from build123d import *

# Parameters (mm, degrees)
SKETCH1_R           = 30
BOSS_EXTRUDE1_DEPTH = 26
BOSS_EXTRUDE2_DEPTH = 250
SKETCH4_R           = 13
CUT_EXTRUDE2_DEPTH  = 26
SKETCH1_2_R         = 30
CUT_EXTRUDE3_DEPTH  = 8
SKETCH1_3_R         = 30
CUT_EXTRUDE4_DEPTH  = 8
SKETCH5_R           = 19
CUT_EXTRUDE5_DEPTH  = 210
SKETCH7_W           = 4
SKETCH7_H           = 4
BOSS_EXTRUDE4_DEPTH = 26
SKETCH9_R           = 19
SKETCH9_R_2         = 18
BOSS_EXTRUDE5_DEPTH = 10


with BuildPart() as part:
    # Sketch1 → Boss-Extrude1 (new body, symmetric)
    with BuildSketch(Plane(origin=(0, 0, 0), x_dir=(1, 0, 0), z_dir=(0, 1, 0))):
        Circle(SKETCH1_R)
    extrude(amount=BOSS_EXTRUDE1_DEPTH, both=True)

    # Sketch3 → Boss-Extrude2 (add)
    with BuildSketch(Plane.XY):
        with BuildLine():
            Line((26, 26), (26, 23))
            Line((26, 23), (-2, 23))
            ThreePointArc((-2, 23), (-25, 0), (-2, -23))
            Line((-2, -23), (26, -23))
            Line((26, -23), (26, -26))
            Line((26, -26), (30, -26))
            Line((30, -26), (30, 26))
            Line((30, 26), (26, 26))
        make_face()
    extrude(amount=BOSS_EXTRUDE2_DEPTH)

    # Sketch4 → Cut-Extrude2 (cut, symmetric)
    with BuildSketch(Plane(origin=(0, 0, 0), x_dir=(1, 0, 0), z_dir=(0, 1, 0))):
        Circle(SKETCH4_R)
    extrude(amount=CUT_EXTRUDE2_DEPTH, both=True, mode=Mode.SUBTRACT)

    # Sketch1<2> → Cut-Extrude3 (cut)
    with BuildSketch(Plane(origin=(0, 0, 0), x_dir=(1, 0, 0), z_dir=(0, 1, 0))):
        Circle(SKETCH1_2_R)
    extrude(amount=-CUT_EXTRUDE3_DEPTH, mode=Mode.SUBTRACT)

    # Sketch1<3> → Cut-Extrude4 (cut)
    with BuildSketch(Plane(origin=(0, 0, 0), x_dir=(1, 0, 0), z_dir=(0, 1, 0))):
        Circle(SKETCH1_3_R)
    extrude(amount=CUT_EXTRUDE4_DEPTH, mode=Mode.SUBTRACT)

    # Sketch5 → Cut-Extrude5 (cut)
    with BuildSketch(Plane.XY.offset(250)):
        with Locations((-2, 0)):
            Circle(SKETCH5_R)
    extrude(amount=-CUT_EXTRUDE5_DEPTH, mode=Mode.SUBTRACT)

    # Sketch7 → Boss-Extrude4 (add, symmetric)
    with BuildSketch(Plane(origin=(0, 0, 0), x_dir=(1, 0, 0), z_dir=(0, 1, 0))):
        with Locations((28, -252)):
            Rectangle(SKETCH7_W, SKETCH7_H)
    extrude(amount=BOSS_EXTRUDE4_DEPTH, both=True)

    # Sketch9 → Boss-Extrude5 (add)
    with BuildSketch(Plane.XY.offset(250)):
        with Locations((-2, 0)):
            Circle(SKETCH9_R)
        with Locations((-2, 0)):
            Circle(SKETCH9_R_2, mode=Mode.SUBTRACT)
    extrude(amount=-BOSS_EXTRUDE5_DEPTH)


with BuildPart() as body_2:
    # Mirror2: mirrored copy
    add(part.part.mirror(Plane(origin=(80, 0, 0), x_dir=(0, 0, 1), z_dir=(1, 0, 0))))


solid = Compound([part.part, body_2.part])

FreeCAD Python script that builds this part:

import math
import FreeCAD as App
import Part
import Sketcher

V = App.Vector


def add_polygon(sketch, points):
    """Adds a closed chain of lines whose ends are joined by coincident constraints."""
    first, n = sketch.GeometryCount, len(points)
    for a, b in zip(points, points[1:] + points[:1]):
        sketch.addGeometry(Part.LineSegment(App.Vector(*a, 0), App.Vector(*b, 0)), False)
    for i in range(n):
        sketch.addConstraint(Sketcher.Constraint("Coincident", first + i, 2, first + (i + 1) % n, 1))

doc = App.newDocument("Part")
params = doc.addObject("Spreadsheet::Sheet", "Params")
for row, (alias, value) in enumerate([
    ("sketch1_diameter", "60 mm"),
    ("pad1_length", "52 mm"),
    ("sketch2_radius", "23 mm"),
    ("sketch2_width", "28 mm"),
    ("sketch2_width2", "4 mm"),
    ("sketch2_height", "3 mm"),
    ("pad2_length", "250 mm"),
    ("sketch3_diameter", "26 mm"),
    ("pocket1_length", "52 mm"),
    ("sketch4_diameter", "60 mm"),
    ("pocket2_length", "8 mm"),
    ("sketch5_diameter", "60 mm"),
    ("pocket3_length", "8 mm"),
    ("sketch6_diameter", "38 mm"),
    ("pocket4_length", "210 mm"),
    ("sketch7_width", "4 mm"),
    ("pad3_length", "52 mm"),
    ("sketch8_diameter", "38 mm"),
    ("sketch8_diameter2", "36 mm"),
    ("pad4_length", "10 mm"),
], start=1):
    params.set(f"A{row}", alias)
    params.set(f"B{row}", "=" + value)
    params.setAlias(f"B{row}", alias)

body = doc.addObject("PartDesign::Body", "Body")

# Sketch on XZ plane
sketch1 = doc.addObject("Sketcher::SketchObject", "Sketch")
body.addObject(sketch1)
sketch1.AttachmentSupport = (doc.XZ_Plane, [""])
sketch1.MapMode = "FlatFace"
sketch1.addGeometry(Part.Circle(V(0, 0, 0), V(0, 0, 1), 30), False)
sketch1.addConstraint([
    Sketcher.Constraint("Coincident", 0, 3, -1, 1),
    Sketcher.Constraint("Diameter", 0, 60.0),
])
sketch1.setExpression("Constraints[1]", "Params.sketch1_diameter")
pad1 = doc.addObject("PartDesign::Pad", "Pad")
body.addObject(pad1)
pad1.Profile = sketch1
pad1.setExpression("Length", "Params.pad1_length")
pad1.Midplane = True

# Sketch on XY plane
sketch2 = doc.addObject("Sketcher::SketchObject", "Sketch001")
body.addObject(sketch2)
sketch2.AttachmentSupport = (doc.XY_Plane, [""])
sketch2.MapMode = "FlatFace"
sketch2.addGeometry([
    Part.LineSegment(V(26, 26, 0), V(26, 23, 0)),  # 0
    Part.LineSegment(V(26, 23, 0), V(-2, 23, 0)),  # 1
    Part.ArcOfCircle(Part.Circle(V(-2, 0, 0), V(0, 0, 1), 23), math.radians(90), math.radians(270)),  # 2
    Part.LineSegment(V(-2, -23, 0), V(26, -23, 0)),  # 3
    Part.LineSegment(V(26, -23, 0), V(26, -26, 0)),  # 4
    Part.LineSegment(V(26, -26, 0), V(30, -26, 0)),  # 5
    Part.LineSegment(V(30, -26, 0), V(30, 26, 0)),  # 6
    Part.LineSegment(V(30, 26, 0), V(26, 26, 0)),  # 7
], False)
sketch2.addConstraint([
    Sketcher.Constraint("Coincident", 0, 2, 1, 1),
    Sketcher.Constraint("Tangent", 1, 2, 2, 1),
    Sketcher.Constraint("Tangent", 2, 2, 3, 1),
    Sketcher.Constraint("Coincident", 3, 2, 4, 1),
    Sketcher.Constraint("Coincident", 4, 2, 5, 1),
    Sketcher.Constraint("Coincident", 5, 2, 6, 1),
    Sketcher.Constraint("Coincident", 6, 2, 7, 1),
    Sketcher.Constraint("Coincident", 7, 2, 0, 1),
    Sketcher.Constraint("Vertical", 0),
    Sketcher.Constraint("Horizontal", 1),
    Sketcher.Constraint("Horizontal", 3),
    Sketcher.Constraint("Vertical", 4),
    Sketcher.Constraint("Horizontal", 5),
    Sketcher.Constraint("Vertical", 6),
    Sketcher.Constraint("Horizontal", 7),
    Sketcher.Constraint("Symmetric", 0, 2, 3, 2, -1),
    Sketcher.Constraint("Equal", 0, 4),
    Sketcher.Constraint("Radius", 2, 23.0),
    Sketcher.Constraint("DistanceX", 1, 2, 1, 1, 28.0),
    Sketcher.Constraint("DistanceX", 5, 1, 5, 2, 4.0),
    Sketcher.Constraint("DistanceY", 0, 2, 0, 1, 3.0),
    Sketcher.Constraint("DistanceX", 2, 3, -1, 1, 2.0),
])
sketch2.setExpression("Constraints[17]", "Params.sketch2_radius")
sketch2.setExpression("Constraints[18]", "Params.sketch2_width")
sketch2.setExpression("Constraints[19]", "Params.sketch2_width2")
sketch2.setExpression("Constraints[20]", "Params.sketch2_height")
pad2 = doc.addObject("PartDesign::Pad", "Pad001")
body.addObject(pad2)
pad2.Profile = sketch2
pad2.setExpression("Length", "Params.pad2_length")

# Sketch on XZ plane
sketch3 = doc.addObject("Sketcher::SketchObject", "Sketch002")
body.addObject(sketch3)
sketch3.AttachmentSupport = (doc.XZ_Plane, [""])
sketch3.MapMode = "FlatFace"
sketch3.addGeometry(Part.Circle(V(0, 0, 0), V(0, 0, 1), 13), False)
sketch3.addConstraint([
    Sketcher.Constraint("Coincident", 0, 3, -1, 1),
    Sketcher.Constraint("Diameter", 0, 26.0),
])
sketch3.setExpression("Constraints[1]", "Params.sketch3_diameter")
pocket1 = doc.addObject("PartDesign::Pocket", "Pocket")
body.addObject(pocket1)
pocket1.Profile = sketch3
pocket1.setExpression("Length", "Params.pocket1_length")
pocket1.Midplane = True

# Sketch on XZ plane
sketch4 = doc.addObject("Sketcher::SketchObject", "Sketch003")
body.addObject(sketch4)
sketch4.AttachmentSupport = (doc.XZ_Plane, [""])
sketch4.MapMode = "FlatFace"
sketch4.addGeometry(Part.Circle(V(0, 0, 0), V(0, 0, 1), 30), False)
sketch4.addConstraint([
    Sketcher.Constraint("Coincident", 0, 3, -1, 1),
    Sketcher.Constraint("Diameter", 0, 60.0),
])
sketch4.setExpression("Constraints[1]", "Params.sketch4_diameter")
pocket2 = doc.addObject("PartDesign::Pocket", "Pocket001")
body.addObject(pocket2)
pocket2.Profile = sketch4
pocket2.setExpression("Length", "Params.pocket2_length")
pocket2.Reversed = True

# Sketch on XZ plane
sketch5 = doc.addObject("Sketcher::SketchObject", "Sketch004")
body.addObject(sketch5)
sketch5.AttachmentSupport = (doc.XZ_Plane, [""])
sketch5.MapMode = "FlatFace"
sketch5.addGeometry(Part.Circle(V(0, 0, 0), V(0, 0, 1), 30), False)
sketch5.addConstraint([
    Sketcher.Constraint("Coincident", 0, 3, -1, 1),
    Sketcher.Constraint("Diameter", 0, 60.0),
])
sketch5.setExpression("Constraints[1]", "Params.sketch5_diameter")
pocket3 = doc.addObject("PartDesign::Pocket", "Pocket002")
body.addObject(pocket3)
pocket3.Profile = sketch5
pocket3.setExpression("Length", "Params.pocket3_length")

# Sketch on XY plane
sketch6 = doc.addObject("Sketcher::SketchObject", "Sketch005")
body.addObject(sketch6)
sketch6.AttachmentSupport = (doc.XY_Plane, [""])
sketch6.MapMode = "FlatFace"
sketch6.AttachmentOffset = App.Placement(V(0, 0, 250), App.Rotation())
sketch6.addGeometry(Part.Circle(V(-2, 0, 0), V(0, 0, 1), 19), False)
sketch6.addConstraint([
    Sketcher.Constraint("PointOnObject", 0, 3, -1),
    Sketcher.Constraint("Diameter", 0, 38.0),
    Sketcher.Constraint("DistanceX", 0, 3, -1, 1, 2.0),
])
sketch6.setExpression("Constraints[1]", "Params.sketch6_diameter")
pocket4 = doc.addObject("PartDesign::Pocket", "Pocket003")
body.addObject(pocket4)
pocket4.Profile = sketch6
pocket4.setExpression("Length", "Params.pocket4_length")

# Sketch on XZ plane
sketch7 = doc.addObject("Sketcher::SketchObject", "Sketch006")
body.addObject(sketch7)
sketch7.AttachmentSupport = (doc.XZ_Plane, [""])
sketch7.MapMode = "FlatFace"
add_polygon(sketch7, [(26, 250), (26, 254), (30, 254), (30, 250)])  # lines 0-3
sketch7.addConstraint([
    Sketcher.Constraint("Vertical", 0),
    Sketcher.Constraint("Horizontal", 1),
    Sketcher.Constraint("Vertical", 2),
    Sketcher.Constraint("Horizontal", 3),
    Sketcher.Constraint("Equal", 3, 0),
    Sketcher.Constraint("DistanceX", 1, 1, 1, 2, 4.0),
    Sketcher.Constraint("DistanceX", -1, 1, 0, 2, 26.0),
    Sketcher.Constraint("DistanceY", -1, 1, 0, 2, 254.0),
])
sketch7.setExpression("Constraints[9]", "Params.sketch7_width")
pad3 = doc.addObject("PartDesign::Pad", "Pad002")
body.addObject(pad3)
pad3.Profile = sketch7
pad3.setExpression("Length", "Params.pad3_length")
pad3.Midplane = True

# Sketch on XY plane
sketch8 = doc.addObject("Sketcher::SketchObject", "Sketch007")
body.addObject(sketch8)
sketch8.AttachmentSupport = (doc.XY_Plane, [""])
sketch8.MapMode = "FlatFace"
sketch8.AttachmentOffset = App.Placement(V(0, 0, 250), App.Rotation())
sketch8.addGeometry([
    Part.Circle(V(-2, 0, 0), V(0, 0, 1), 19),
    Part.Circle(V(-2, 0, 0), V(0, 0, 1), 18),
], False)
sketch8.addConstraint([
    Sketcher.Constraint("Coincident", 1, 3, 0, 3),
    Sketcher.Constraint("PointOnObject", 0, 3, -1),
    Sketcher.Constraint("Diameter", 0, 38.0),
    Sketcher.Constraint("Diameter", 1, 36.0),
    Sketcher.Constraint("DistanceX", 0, 3, -1, 1, 2.0),
])
sketch8.setExpression("Constraints[2]", "Params.sketch8_diameter")
sketch8.setExpression("Constraints[3]", "Params.sketch8_diameter2")
pad4 = doc.addObject("PartDesign::Pad", "Pad003")
body.addObject(pad4)
pad4.Profile = sketch8
pad4.setExpression("Length", "Params.pad4_length")
pad4.Reversed = True
body2 = doc.addObject("PartDesign::Body", "Body001")
doc.recompute()

mirroring = doc.addObject("Part::Mirroring", "Mirroring")
mirroring.Source = body
mirroring.Base = V(80, 0, 0)
mirroring.Normal = V(1, 0, 0)
body2.BaseFeature = mirroring
doc.recompute()
mirroring.Visibility = False

doc.recompute()
